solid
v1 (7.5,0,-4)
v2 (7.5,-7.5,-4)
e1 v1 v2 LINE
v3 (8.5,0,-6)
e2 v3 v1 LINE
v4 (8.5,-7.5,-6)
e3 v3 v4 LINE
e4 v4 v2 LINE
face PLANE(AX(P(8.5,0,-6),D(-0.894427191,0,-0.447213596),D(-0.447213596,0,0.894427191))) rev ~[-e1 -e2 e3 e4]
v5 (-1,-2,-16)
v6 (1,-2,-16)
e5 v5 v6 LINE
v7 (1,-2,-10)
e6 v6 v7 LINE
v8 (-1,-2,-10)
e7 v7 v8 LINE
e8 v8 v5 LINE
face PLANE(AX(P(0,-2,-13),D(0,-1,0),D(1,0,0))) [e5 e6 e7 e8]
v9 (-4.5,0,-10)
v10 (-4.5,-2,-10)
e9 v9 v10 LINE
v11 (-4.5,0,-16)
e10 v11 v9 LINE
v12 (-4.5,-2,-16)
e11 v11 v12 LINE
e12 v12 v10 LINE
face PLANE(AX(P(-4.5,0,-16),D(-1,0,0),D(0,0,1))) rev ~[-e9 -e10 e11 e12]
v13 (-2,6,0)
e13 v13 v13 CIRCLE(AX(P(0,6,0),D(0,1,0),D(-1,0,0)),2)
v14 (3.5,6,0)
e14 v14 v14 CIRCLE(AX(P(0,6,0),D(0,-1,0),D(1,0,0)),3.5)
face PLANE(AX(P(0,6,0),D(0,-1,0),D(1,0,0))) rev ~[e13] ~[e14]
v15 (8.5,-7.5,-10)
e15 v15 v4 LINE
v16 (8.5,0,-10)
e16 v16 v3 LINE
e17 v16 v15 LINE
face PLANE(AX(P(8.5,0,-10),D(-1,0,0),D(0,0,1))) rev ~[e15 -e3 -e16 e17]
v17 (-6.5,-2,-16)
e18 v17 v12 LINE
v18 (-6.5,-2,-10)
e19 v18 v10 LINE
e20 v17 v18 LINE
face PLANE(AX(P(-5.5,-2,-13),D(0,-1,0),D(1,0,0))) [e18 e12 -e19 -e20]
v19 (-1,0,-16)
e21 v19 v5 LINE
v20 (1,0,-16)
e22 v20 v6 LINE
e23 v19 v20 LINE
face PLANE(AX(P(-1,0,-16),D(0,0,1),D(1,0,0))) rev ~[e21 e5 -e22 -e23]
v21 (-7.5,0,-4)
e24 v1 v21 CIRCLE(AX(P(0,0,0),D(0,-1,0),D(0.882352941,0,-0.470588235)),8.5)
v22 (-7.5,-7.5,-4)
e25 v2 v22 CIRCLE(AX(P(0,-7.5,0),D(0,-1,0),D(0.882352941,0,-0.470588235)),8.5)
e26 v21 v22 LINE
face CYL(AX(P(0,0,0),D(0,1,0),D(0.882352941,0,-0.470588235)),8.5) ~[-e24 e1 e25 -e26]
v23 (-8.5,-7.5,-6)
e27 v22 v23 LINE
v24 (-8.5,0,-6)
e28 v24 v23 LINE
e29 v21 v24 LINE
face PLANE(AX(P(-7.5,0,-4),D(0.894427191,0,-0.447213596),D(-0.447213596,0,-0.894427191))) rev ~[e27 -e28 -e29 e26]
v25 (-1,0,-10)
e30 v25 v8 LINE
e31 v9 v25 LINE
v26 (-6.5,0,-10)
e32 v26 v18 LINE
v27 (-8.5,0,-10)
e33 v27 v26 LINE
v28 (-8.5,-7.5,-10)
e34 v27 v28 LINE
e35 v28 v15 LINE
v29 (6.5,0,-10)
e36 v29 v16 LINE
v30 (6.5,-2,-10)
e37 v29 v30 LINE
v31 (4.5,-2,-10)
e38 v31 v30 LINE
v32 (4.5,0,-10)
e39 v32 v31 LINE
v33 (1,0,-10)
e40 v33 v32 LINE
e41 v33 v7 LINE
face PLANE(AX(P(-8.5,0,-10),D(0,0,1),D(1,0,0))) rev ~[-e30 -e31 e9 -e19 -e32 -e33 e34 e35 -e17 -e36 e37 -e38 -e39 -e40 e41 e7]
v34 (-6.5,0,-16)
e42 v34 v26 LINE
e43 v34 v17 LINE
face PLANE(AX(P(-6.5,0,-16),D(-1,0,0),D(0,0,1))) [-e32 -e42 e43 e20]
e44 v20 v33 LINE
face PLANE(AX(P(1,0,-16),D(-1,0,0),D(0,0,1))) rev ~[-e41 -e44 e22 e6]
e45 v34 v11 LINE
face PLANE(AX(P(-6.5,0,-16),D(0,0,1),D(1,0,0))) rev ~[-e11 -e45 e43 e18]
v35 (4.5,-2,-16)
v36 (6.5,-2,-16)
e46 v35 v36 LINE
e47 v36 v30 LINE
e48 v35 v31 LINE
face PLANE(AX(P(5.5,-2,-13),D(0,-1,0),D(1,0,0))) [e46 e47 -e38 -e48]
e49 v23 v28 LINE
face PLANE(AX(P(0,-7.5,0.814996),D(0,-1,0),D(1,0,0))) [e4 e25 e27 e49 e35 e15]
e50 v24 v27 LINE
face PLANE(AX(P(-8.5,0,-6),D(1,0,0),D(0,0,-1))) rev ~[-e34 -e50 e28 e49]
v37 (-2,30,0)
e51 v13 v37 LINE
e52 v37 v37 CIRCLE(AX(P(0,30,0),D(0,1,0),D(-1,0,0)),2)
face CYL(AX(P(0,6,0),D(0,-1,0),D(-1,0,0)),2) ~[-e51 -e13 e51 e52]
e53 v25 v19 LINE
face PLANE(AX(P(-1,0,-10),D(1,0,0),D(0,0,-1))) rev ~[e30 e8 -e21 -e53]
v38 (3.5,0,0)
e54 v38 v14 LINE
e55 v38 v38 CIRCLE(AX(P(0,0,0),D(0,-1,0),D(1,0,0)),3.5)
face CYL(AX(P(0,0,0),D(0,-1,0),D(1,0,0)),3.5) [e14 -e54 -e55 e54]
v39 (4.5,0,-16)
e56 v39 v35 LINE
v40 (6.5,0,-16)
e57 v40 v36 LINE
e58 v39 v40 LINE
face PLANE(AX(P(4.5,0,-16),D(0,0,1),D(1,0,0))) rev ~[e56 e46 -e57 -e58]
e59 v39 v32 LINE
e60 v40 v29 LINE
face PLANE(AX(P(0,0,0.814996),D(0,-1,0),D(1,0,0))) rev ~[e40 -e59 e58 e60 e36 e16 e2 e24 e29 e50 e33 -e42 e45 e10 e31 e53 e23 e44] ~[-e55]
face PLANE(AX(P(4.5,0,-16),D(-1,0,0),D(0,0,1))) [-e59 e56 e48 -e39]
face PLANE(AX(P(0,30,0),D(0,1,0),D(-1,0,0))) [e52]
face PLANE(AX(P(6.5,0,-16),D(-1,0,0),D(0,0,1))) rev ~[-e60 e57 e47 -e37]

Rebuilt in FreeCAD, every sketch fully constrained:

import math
import FreeCAD as App
import Part
import Sketcher
from FreeCAD import Vector
Q = App.Units.Quantity

doc = App.newDocument("Part")
body = doc.addObject("PartDesign::Body", "Body")

# Sketch on XZ plane
sketch1 = body.newObject("Sketcher::SketchObject", "Sketch")
sketch1.AttachmentSupport = (doc.getObject("XZ_Plane"), [""])
sketch1.MapMode = "FlatFace"
sketch1.addGeometry([
    Part.ArcOfCircle(Part.Circle(Vector(0, 0, 0), Vector(0, 0, 1), 8.5), math.radians(-28), math.radians(208)),  # 0
    Part.LineSegment(Vector(-7.5, -4, 0), Vector(-8.5, -6, 0)),  # 1
    Part.LineSegment(Vector(-8.5, -6, 0), Vector(-8.5, -10, 0)),  # 2
    Part.LineSegment(Vector(-8.5, -10, 0), Vector(8.5, -10, 0)),  # 3
    Part.LineSegment(Vector(8.5, -10, 0), Vector(8.5, -6, 0)),  # 4
    Part.LineSegment(Vector(8.5, -6, 0), Vector(7.5, -4, 0)),  # 5
], False)
sketch1.addConstraint([
    Sketcher.Constraint("Coincident", 0, 2, 1, 1),
    Sketcher.Constraint("Coincident", 1, 2, 2, 1),
    Sketcher.Constraint("Coincident", 2, 2, 3, 1),
    Sketcher.Constraint("Coincident", 3, 2, 4, 1),
    Sketcher.Constraint("Coincident", 4, 2, 5, 1),
    Sketcher.Constraint("Coincident", 5, 2, 0, 1),
    Sketcher.Constraint("Vertical", 2),
    Sketcher.Constraint("Horizontal", 3),
    Sketcher.Constraint("Vertical", 4),
    Sketcher.Constraint("Coincident", 0, 3, -1, 1),
    Sketcher.Constraint("Symmetric", 1, 2, 4, 2, -2),
    Sketcher.Constraint("Horizontal", 0, 2, 5, 2),
    Sketcher.Constraint("Radius", 0, Q("8.5 mm")),
    Sketcher.Constraint("DistanceX", 3, 1, 3, 2, Q("17 mm")),
    Sketcher.Constraint("DistanceY", 2, 2, 2, 1, Q("4 mm")),
    Sketcher.Constraint("DistanceY", 0, 2, -1, 1, Q("4 mm")),
    Sketcher.Constraint("DistanceY", 1, 2, -1, 1, Q("6 mm")),
])
pad1 = body.newObject("PartDesign::Pad", "Pad")
pad1.Profile = sketch1
pad1.Length = 7.5

# Sketch on XZ plane
sketch2 = body.newObject("Sketcher::SketchObject", "Sketch001")
sketch2.AttachmentSupport = (doc.getObject("XZ_Plane"), [""])
sketch2.MapMode = "FlatFace"
sketch2.addGeometry([
    Part.LineSegment(Vector(-6.5, -10, 0), Vector(-6.5, -16, 0)),  # 0
    Part.LineSegment(Vector(-6.5, -16, 0), Vector(-4.5, -16, 0)),  # 1
    Part.LineSegment(Vector(-4.5, -16, 0), Vector(-4.5, -10, 0)),  # 2
    Part.LineSegment(Vector(-4.5, -10, 0), Vector(-6.5, -10, 0)),  # 3
    Part.LineSegment(Vector(1, -16, 0), Vector(1, -10, 0)),  # 4
    Part.LineSegment(Vector(1, -10, 0), Vector(-1, -10, 0)),  # 5
    Part.LineSegment(Vector(-1, -10, 0), Vector(-1, -16, 0)),  # 6
    Part.LineSegment(Vector(-1, -16, 0), Vector(1, -16, 0)),  # 7
    Part.LineSegment(Vector(4.5, -10, 0), Vector(4.5, -16, 0)),  # 8
    Part.LineSegment(Vector(4.5, -16, 0), Vector(6.5, -16, 0)),  # 9
    Part.LineSegment(Vector(6.5, -16, 0), Vector(6.5, -10, 0)),  # 10
    Part.LineSegment(Vector(6.5, -10, 0), Vector(4.5, -10, 0)),  # 11
], False)
sketch2.addConstraint([
    Sketcher.Constraint("Coincident", 0, 2, 1, 1),
    Sketcher.Constraint("Coincident", 1, 2, 2, 1),
    Sketcher.Constraint("Coincident", 2, 2, 3, 1),
    Sketcher.Constraint("Coincident", 3, 2, 0, 1),
    Sketcher.Constraint("Coincident", 4, 2, 5, 1),
    Sketcher.Constraint("Coincident", 5, 2, 6, 1),
    Sketcher.Constraint("Coincident", 6, 2, 7, 1),
    Sketcher.Constraint("Coincident", 7, 2, 4, 1),
    Sketcher.Constraint("Coincident", 8, 2, 9, 1),
    Sketcher.Constraint("Coincident", 9, 2, 10, 1),
    Sketcher.Constraint("Coincident", 10, 2, 11, 1),
    Sketcher.Constraint("Coincident", 11, 2, 8, 1),
    Sketcher.Constraint("Vertical", 0),
    Sketcher.Constraint("Horizontal", 1),
    Sketcher.Constraint("Vertical", 2),
    Sketcher.Constraint("Horizontal", 3),
    Sketcher.Constraint("Vertical", 4),
    Sketcher.Constraint("Horizontal", 5),
    Sketcher.Constraint("Vertical", 6),
    Sketcher.Constraint("Horizontal", 7),
    Sketcher.Constraint("Vertical", 8),
    Sketcher.Constraint("Horizontal", 9),
    Sketcher.Constraint("Vertical", 10),
    Sketcher.Constraint("Horizontal", 11),
    Sketcher.Constraint("Symmetric", 1, 2, 8, 2, -2),
    Sketcher.Constraint("Symmetric", 3, 2, 10, 2, -2),
    Sketcher.Constraint("Horizontal", 3, 2, 4, 2),
    Sketcher.Constraint("Horizontal", 1, 2, 6, 2),
    Sketcher.Constraint("Equal", 3, 5),
    Sketcher.Constraint("DistanceX", 1, 1, 1, 2, Q("2 mm")),
    Sketcher.Constraint("DistanceY", 0, 2, 0, 1, Q("6 mm")),
    Sketcher.Constraint("DistanceY", 0, 2, -1, 1, Q("16 mm")),
    Sketcher.Constraint("DistanceX", -1, 1, 4, 2, Q("1 mm")),
    Sketcher.Constraint("DistanceX", 1, 2, 8, 2, Q("9 mm")),
])
pad2 = body.newObject("PartDesign::Pad", "Pad001")
pad2.Profile = sketch2
pad2.Length = 2

# Sketch on XZ plane
sketch3 = body.newObject("Sketcher::SketchObject", "Sketch002")
sketch3.AttachmentSupport = (doc.getObject("XZ_Plane"), [""])
sketch3.MapMode = "FlatFace"
sketch3.addGeometry(Part.Circle(Vector(0, 0, 0), Vector(0, 0, 1), 3.5), False)
sketch3.addConstraint([
    Sketcher.Constraint("Coincident", 0, 3, -1, 1),
    Sketcher.Constraint("Diameter", 0, Q("7 mm")),
])
pad3 = body.newObject("PartDesign::Pad", "Pad002")
pad3.Profile = sketch3
pad3.Length = 6
pad3.Reversed = True

# Sketch on XZ plane
sketch4 = body.newObject("Sketcher::SketchObject", "Sketch003")
sketch4.AttachmentSupport = (doc.getObject("XZ_Plane"), [""])
sketch4.MapMode = "FlatFace"
sketch4.AttachmentOffset = App.Placement(Vector(0, 0, -6), App.Rotation())
sketch4.addGeometry(Part.Circle(Vector(0, 0, 0), Vector(0, 0, 1), 2), False)
sketch4.addConstraint([
    Sketcher.Constraint("Coincident", 0, 3, -1, 1),
    Sketcher.Constraint("Diameter", 0, Q("4 mm")),
])
pad4 = body.newObject("PartDesign::Pad", "Pad003")
pad4.Profile = sketch4
pad4.Length = 24
pad4.Reversed = True

doc.recompute()
